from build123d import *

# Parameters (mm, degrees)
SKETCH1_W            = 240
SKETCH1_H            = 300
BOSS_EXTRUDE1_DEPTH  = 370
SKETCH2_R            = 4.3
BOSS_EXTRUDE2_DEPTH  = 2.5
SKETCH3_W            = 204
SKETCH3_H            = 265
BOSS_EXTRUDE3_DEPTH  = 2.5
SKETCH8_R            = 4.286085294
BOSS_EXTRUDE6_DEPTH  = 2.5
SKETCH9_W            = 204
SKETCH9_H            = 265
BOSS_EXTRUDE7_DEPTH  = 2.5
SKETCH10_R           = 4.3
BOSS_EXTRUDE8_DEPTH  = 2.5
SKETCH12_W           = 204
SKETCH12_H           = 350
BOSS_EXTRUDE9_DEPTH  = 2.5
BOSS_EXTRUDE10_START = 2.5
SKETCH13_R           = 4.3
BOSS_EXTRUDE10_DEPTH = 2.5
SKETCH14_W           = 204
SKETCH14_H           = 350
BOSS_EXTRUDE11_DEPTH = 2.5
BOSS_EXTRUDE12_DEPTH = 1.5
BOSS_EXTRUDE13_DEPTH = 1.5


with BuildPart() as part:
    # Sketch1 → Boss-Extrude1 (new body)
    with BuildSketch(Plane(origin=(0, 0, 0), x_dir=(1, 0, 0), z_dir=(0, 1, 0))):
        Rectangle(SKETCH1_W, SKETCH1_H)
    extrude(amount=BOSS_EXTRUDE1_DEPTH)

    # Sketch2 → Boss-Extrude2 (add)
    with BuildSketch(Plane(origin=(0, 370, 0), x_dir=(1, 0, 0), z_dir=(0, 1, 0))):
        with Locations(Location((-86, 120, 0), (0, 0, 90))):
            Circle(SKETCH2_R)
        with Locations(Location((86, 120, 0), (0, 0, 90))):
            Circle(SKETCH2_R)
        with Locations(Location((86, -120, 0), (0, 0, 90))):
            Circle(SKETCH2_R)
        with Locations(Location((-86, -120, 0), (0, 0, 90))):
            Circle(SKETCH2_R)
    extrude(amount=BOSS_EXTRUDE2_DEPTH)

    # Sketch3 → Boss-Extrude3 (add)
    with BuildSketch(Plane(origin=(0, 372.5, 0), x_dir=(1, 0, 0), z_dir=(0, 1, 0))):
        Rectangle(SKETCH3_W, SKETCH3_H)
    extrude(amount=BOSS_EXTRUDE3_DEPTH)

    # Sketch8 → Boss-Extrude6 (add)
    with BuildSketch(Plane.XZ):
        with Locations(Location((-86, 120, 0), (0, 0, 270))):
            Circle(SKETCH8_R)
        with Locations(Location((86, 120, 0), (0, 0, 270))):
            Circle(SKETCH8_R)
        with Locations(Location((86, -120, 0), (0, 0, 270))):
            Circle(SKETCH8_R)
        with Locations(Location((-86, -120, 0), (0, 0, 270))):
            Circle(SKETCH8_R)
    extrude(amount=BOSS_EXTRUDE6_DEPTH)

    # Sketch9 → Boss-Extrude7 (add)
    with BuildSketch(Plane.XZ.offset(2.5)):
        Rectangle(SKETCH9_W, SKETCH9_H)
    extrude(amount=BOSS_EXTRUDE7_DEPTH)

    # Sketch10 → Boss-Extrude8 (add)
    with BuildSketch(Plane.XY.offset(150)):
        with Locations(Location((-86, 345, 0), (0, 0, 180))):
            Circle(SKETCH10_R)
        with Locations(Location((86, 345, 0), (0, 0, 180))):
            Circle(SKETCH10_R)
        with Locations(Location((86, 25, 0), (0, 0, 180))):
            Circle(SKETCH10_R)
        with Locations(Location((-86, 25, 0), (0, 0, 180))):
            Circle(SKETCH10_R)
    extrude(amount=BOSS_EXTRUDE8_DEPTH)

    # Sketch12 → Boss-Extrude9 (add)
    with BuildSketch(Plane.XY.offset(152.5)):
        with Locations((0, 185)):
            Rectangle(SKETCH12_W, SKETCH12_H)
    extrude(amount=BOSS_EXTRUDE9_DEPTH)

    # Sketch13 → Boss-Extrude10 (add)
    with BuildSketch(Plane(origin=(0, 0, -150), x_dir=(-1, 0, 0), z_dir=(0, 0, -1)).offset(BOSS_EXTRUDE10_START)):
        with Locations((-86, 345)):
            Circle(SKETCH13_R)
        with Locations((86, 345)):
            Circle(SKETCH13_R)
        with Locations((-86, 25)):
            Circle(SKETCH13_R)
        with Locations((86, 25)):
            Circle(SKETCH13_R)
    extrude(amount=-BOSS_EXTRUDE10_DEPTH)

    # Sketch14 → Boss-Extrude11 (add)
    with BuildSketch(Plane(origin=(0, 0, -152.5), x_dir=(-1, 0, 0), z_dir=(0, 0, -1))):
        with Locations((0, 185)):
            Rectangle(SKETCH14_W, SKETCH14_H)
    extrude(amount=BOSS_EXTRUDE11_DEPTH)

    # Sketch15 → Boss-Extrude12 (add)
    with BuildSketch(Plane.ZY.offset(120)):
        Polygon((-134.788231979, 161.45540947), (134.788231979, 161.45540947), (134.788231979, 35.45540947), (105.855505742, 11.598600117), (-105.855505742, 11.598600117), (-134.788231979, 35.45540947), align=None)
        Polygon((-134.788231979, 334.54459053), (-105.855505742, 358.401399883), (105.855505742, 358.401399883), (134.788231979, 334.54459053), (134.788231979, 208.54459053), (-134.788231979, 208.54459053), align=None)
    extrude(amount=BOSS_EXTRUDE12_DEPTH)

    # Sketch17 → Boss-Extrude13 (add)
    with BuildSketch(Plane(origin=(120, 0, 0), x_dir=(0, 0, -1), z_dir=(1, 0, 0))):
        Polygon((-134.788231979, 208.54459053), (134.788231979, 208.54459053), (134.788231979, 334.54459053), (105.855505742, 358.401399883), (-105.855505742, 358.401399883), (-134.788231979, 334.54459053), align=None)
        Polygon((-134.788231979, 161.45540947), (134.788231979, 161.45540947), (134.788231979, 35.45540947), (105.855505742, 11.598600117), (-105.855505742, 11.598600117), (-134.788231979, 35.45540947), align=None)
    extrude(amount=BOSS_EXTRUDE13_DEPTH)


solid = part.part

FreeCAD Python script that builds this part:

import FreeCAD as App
import Part
import Sketcher
from FreeCAD import Vector

doc = App.newDocument("Part")
body = doc.addObject("PartDesign::Body", "Body")

# Sketch on XZ plane
sketch1 = body.newObject("Sketcher::SketchObject", "Sketch")
sketch1.AttachmentSupport = (doc.getObject("XZ_Plane"), [""])
sketch1.MapMode = "FlatFace"
sketch1.addGeometry(Part.LineSegment(Vector(-120, -150, 0), Vector(-120, 150, 0)), False)
sketch1.addGeometry(Part.LineSegment(Vector(-120, 150, 0), Vector(120, 150, 0)), False)
sketch1.addGeometry(Part.LineSegment(Vector(120, 150, 0), Vector(120, -150, 0)), False)
sketch1.addGeometry(Part.LineSegment(Vector(120, -150, 0), Vector(-120, -150, 0)), False)
sketch1.addConstraint(Sketcher.Constraint("Coincident", 0, 2, 1, 1))
sketch1.addConstraint(Sketcher.Constraint("Coincident", 1, 2, 2, 1))
sketch1.addConstraint(Sketcher.Constraint("Coincident", 2, 2, 3, 1))
sketch1.addConstraint(Sketcher.Constraint("Coincident", 3, 2, 0, 1))
sketch1.addConstraint(Sketcher.Constraint("Vertical", 0))
sketch1.addConstraint(Sketcher.Constraint("Horizontal", 1))
sketch1.addConstraint(Sketcher.Constraint("Vertical", 2))
sketch1.addConstraint(Sketcher.Constraint("Horizontal", 3))
sketch1.addConstraint(Sketcher.Constraint("Symmetric", 0, 2, 2, 2, -1, 1))
sketch1.addConstraint(Sketcher.Constraint("DistanceX", 1, 1, 1, 2, 240.0))
sketch1.addConstraint(Sketcher.Constraint("DistanceY", 0, 1, 0, 2, 300.0))
pad1 = body.newObject("PartDesign::Pad", "Pad")
pad1.Profile = sketch1
pad1.Length = 370
pad1.Reversed = True

# Sketch on XZ plane
sketch2 = body.newObject("Sketcher::SketchObject", "Sketch001")
sketch2.AttachmentSupport = (doc.getObject("XZ_Plane"), [""])
sketch2.MapMode = "FlatFace"
sketch2.AttachmentOffset = App.Placement(Vector(0, 0, -370), App.Rotation())
sketch2.addGeometry(Part.Circle(Vector(-86, -120, 0), Vector(0, 0, 1), 4.3), False)
sketch2.addGeometry(Part.Circle(Vector(86, -120, 0), Vector(0, 0, 1), 4.3), False)
sketch2.addGeometry(Part.Circle(Vector(86, 120, 0), Vector(0, 0, 1), 4.3), False)
sketch2.addGeometry(Part.Circle(Vector(-86, 120, 0), Vector(0, 0, 1), 4.3), False)
sketch2.addConstraint(Sketcher.Constraint("Equal", 0, 1))
sketch2.addConstraint(Sketcher.Constraint("Equal", 1, 2))
sketch2.addConstraint(Sketcher.Constraint("Equal", 2, 3))
sketch2.addConstraint(Sketcher.Constraint("Symmetric", 0, 3, 2, 3, -1, 1))
sketch2.addConstraint(Sketcher.Constraint("Symmetric", 1, 3, 3, 3, -1, 1))
sketch2.addConstraint(Sketcher.Constraint("Symmetric", 0, 3, 1, 3, -2))
sketch2.addConstraint(Sketcher.Constraint("Diameter", 0, 8.6))
sketch2.addConstraint(Sketcher.Constraint("DistanceX", 0, 3, -1, 1, 86.0))
sketch2.addConstraint(Sketcher.Constraint("DistanceY", 0, 3, -1, 1, 120.0))
pad2 = body.newObject("PartDesign::Pad", "Pad001")
pad2.Profile = sketch2
pad2.Length = 2.5
pad2.Reversed = True

# Sketch on XZ plane
sketch3 = body.newObject("Sketcher::SketchObject", "Sketch002")
sketch3.AttachmentSupport = (doc.getObject("XZ_Plane"), [""])
sketch3.MapMode = "FlatFace"
sketch3.AttachmentOffset = App.Placement(Vector(0, 0, -372.5), App.Rotation())
sketch3.addGeometry(Part.LineSegment(Vector(-102, -132, 0), Vector(-102, 132, 0)), False)
sketch3.addGeometry(Part.LineSegment(Vector(-102, 132, 0), Vector(102, 132, 0)), False)
sketch3.addGeometry(Part.LineSegment(Vector(102, 132, 0), Vector(102, -132, 0)), False)
sketch3.addGeometry(Part.LineSegment(Vector(102, -132, 0), Vector(-102, -132, 0)), False)
sketch3.addConstraint(Sketcher.Constraint("Coincident", 0, 2, 1, 1))
sketch3.addConstraint(Sketcher.Constraint("Coincident", 1, 2, 2, 1))
sketch3.addConstraint(Sketcher.Constraint("Coincident", 2, 2, 3, 1))
sketch3.addConstraint(Sketcher.Constraint("Coincident", 3, 2, 0, 1))
sketch3.addConstraint(Sketcher.Constraint("Vertical", 0))
sketch3.addConstraint(Sketcher.Constraint("Horizontal", 1))
sketch3.addConstraint(Sketcher.Constraint("Vertical", 2))
sketch3.addConstraint(Sketcher.Constraint("Horizontal", 3))
sketch3.addConstraint(Sketcher.Constraint("Symmetric", 0, 2, 2, 2, -1, 1))
sketch3.addConstraint(Sketcher.Constraint("DistanceX", 1, 1, 1, 2, 204.0))
sketch3.addConstraint(Sketcher.Constraint("DistanceY", 0, 1, 0, 2, 265.0))
pad3 = body.newObject("PartDesign::Pad", "Pad002")
pad3.Profile = sketch3
pad3.Length = 2.5
pad3.Reversed = True

# Sketch on XZ plane
sketch4 = body.newObject("Sketcher::SketchObject", "Sketch003")
sketch4.AttachmentSupport = (doc.getObject("XZ_Plane"), [""])
sketch4.MapMode = "FlatFace"
sketch4.addGeometry(Part.Circle(Vector(-86, 120, 0), Vector(0, 0, 1), 4.3), False)
sketch4.addGeometry(Part.Circle(Vector(86, 120, 0), Vector(0, 0, 1), 4.3), False)
sketch4.addGeometry(Part.Circle(Vector(86, -120, 0), Vector(0, 0, 1), 4.3), False)
sketch4.addGeometry(Part.Circle(Vector(-86, -120, 0), Vector(0, 0, 1), 4.3), False)
sketch4.addConstraint(Sketcher.Constraint("Equal", 0, 1))
sketch4.addConstraint(Sketcher.Constraint("Equal", 1, 2))
sketch4.addConstraint(Sketcher.Constraint("Equal", 2, 3))
sketch4.addConstraint(Sketcher.Constraint("Symmetric", 0, 3, 2, 3, -1, 1))
sketch4.addConstraint(Sketcher.Constraint("Symmetric", 1, 3, 3, 3, -1, 1))
sketch4.addConstraint(Sketcher.Constraint("Symmetric", 0, 3, 1, 3, -2))
sketch4.addConstraint(Sketcher.Constraint("DistanceX", 0, 3, -1, 1, 86.0))
sketch4.addConstraint(Sketcher.Constraint("DistanceY", -1, 1, 0, 3, 120.0))
sketch4.addConstraint(Sketcher.Constraint("Diameter", 0, 8.572171))
pad4 = body.newObject("PartDesign::Pad", "Pad003")
pad4.Profile = sketch4
pad4.Length = 2.5

# Sketch on XZ plane
sketch5 = body.newObject("Sketcher::SketchObject", "Sketch004")
sketch5.AttachmentSupport = (doc.getObject("XZ_Plane"), [""])
sketch5.MapMode = "FlatFace"
sketch5.AttachmentOffset = App.Placement(Vector(0, 0, 2.5), App.Rotation())
sketch5.addGeometry(Part.LineSegment(Vector(-102, 132, 0), Vector(-102, -132, 0)), False)
sketch5.addGeometry(Part.LineSegment(Vector(-102, -132, 0), Vector(102, -132, 0)), False)
sketch5.addGeometry(Part.LineSegment(Vector(102, -132, 0), Vector(102, 132, 0)), False)
sketch5.addGeometry(Part.LineSegment(Vector(102, 132, 0), Vector(-102, 132, 0)), False)
sketch5.addConstraint(Sketcher.Constraint("Coincident", 0, 2, 1, 1))
sketch5.addConstraint(Sketcher.Constraint("Coincident", 1, 2, 2, 1))
sketch5.addConstraint(Sketcher.Constraint("Coincident", 2, 2, 3, 1))
sketch5.addConstraint(Sketcher.Constraint("Coincident", 3, 2, 0, 1))
sketch5.addConstraint(Sketcher.Constraint("Vertical", 0))
sketch5.addConstraint(Sketcher.Constraint("Horizontal", 1))
sketch5.addConstraint(Sketcher.Constraint("Vertical", 2))
sketch5.addConstraint(Sketcher.Constraint("Horizontal", 3))
sketch5.addConstraint(Sketcher.Constraint("Symmetric", 0, 2, 2, 2, -1, 1))
sketch5.addConstraint(Sketcher.Constraint("DistanceX", 1, 1, 1, 2, 204.0))
sketch5.addConstraint(Sketcher.Constraint("DistanceY", 0, 2, 0, 1, 265.0))
pad5 = body.newObject("PartDesign::Pad", "Pad004")
pad5.Profile = sketch5
pad5.Length = 2.5

# Sketch on XY plane
sketch6 = body.newObject("Sketcher::SketchObject", "Sketch005")
sketch6.AttachmentSupport = (doc.getObject("XY_Plane"), [""])
sketch6.MapMode = "FlatFace"
sketch6.AttachmentOffset = App.Placement(Vector(0, 0, 150), App.Rotation())
sketch6.addGeometry(Part.Circle(Vector(-86, 345, 0), Vector(0, 0, 1), 4.3), False)
sketch6.addGeometry(Part.Circle(Vector(86, 345, 0), Vector(0, 0, 1), 4.3), False)
sketch6.addGeometry(Part.Circle(Vector(86, 25, 0), Vector(0, 0, 1), 4.3), False)
sketch6.addGeometry(Part.Circle(Vector(-86, 25, 0), Vector(0, 0, 1), 4.3), False)
sketch6.addConstraint(Sketcher.Constraint("Equal", 0, 1))
sketch6.addConstraint(Sketcher.Constraint("Equal", 1, 2))
sketch6.addConstraint(Sketcher.Constraint("Equal", 2, 3))
sketch6.addConstraint(Sketcher.Constraint("Symmetric", 0, 3, 1, 3, -2))
sketch6.addConstraint(Sketcher.Constraint("Symmetric", 2, 3, 3, 3, -2))
sketch6.addConstraint(Sketcher.Constraint("Vertical", 1, 3, 2, 3))
sketch6.addConstraint(Sketcher.Constraint("Diameter", 0, 8.6))
sketch6.addConstraint(Sketcher.Constraint("DistanceX", 0, 3, -1, 1, 86.0))
sketch6.addConstraint(Sketcher.Constraint("DistanceY", -1, 1, 0, 3, 345.0))
sketch6.addConstraint(Sketcher.Constraint("DistanceY", -1, 1, 2, 3, 25.0))
pad6 = body.newObject("PartDesign::Pad", "Pad005")
pad6.Profile = sketch6
pad6.Length = 2.5

# Sketch on XY plane
sketch7 = body.newObject("Sketcher::SketchObject", "Sketch006")
sketch7.AttachmentSupport = (doc.getObject("XY_Plane"), [""])
sketch7.MapMode = "FlatFace"
sketch7.AttachmentOffset = App.Placement(Vector(0, 0, 152.5), App.Rotation())
sketch7.addGeometry(Part.LineSegment(Vector(-102, 360, 0), Vector(-102, 10, 0)), False)
sketch7.addGeometry(Part.LineSegment(Vector(-102, 10, 0), Vector(102, 10, 0)), False)
sketch7.addGeometry(Part.LineSegment(Vector(102, 10, 0), Vector(102, 360, 0)), False)
sketch7.addGeometry(Part.LineSegment(Vector(102, 360, 0), Vector(-102, 360, 0)), False)
sketch7.addConstraint(Sketcher.Constraint("Coincident", 0, 2, 1, 1))
sketch7.addConstraint(Sketcher.Constraint("Coincident", 1, 2, 2, 1))
sketch7.addConstraint(Sketcher.Constraint("Coincident", 2, 2, 3, 1))
sketch7.addConstraint(Sketcher.Constraint("Coincident", 3, 2, 0, 1))
sketch7.addConstraint(Sketcher.Constraint("Vertical", 0))
sketch7.addConstraint(Sketcher.Constraint("Horizontal", 1))
sketch7.addConstraint(Sketcher.Constraint("Vertical", 2))
sketch7.addConstraint(Sketcher.Constraint("Horizontal", 3))
sketch7.addConstraint(Sketcher.Constraint("DistanceX", 1, 1, 1, 2, 204.0))
sketch7.addConstraint(Sketcher.Constraint("DistanceY", 0, 2, 0, 1, 350.0))
sketch7.addConstraint(Sketcher.Constraint("DistanceX", 0, 2, -1, 1, 102.0))
sketch7.addConstraint(Sketcher.Constraint("DistanceY", -1, 1, 0, 2, 10.0))
pad7 = body.newObject("PartDesign::Pad", "Pad006")
pad7.Profile = sketch7
pad7.Length = 2.5

# Sketch on XY plane
sketch8 = body.newObject("Sketcher::SketchObject", "Sketch007")
sketch8.AttachmentSupport = (doc.getObject("XY_Plane"), [""])
sketch8.MapMode = "FlatFace"
sketch8.AttachmentOffset = App.Placement(Vector(0, 0, -152.5), App.Rotation())
sketch8.addGeometry(Part.Circle(Vector(86, 345, 0), Vector(0, 0, 1), 4.3), False)
sketch8.addGeometry(Part.Circle(Vector(-86, 345, 0), Vector(0, 0, 1), 4.3), False)
sketch8.addGeometry(Part.Circle(Vector(86, 25, 0), Vector(0, 0, 1), 4.3), False)
sketch8.addGeometry(Part.Circle(Vector(-86, 25, 0), Vector(0, 0, 1), 4.3), False)
sketch8.addConstraint(Sketcher.Constraint("Equal", 0, 1))
sketch8.addConstraint(Sketcher.Constraint("Equal", 1, 2))
sketch8.addConstraint(Sketcher.Constraint("Equal", 2, 3))
sketch8.addConstraint(Sketcher.Constraint("Symmetric", 0, 3, 1, 3, -2))
sketch8.addConstraint(Sketcher.Constraint("Symmetric", 2, 3, 3, 3, -2))
sketch8.addConstraint(Sketcher.Constraint("Vertical", 0, 3, 2, 3))
sketch8.addConstraint(Sketcher.Constraint("Diameter", 0, 8.6))
sketch8.addConstraint(Sketcher.Constraint("DistanceX", -1, 1, 0, 3, 86.0))
sketch8.addConstraint(Sketcher.Constraint("DistanceY", -1, 1, 0, 3, 345.0))
sketch8.addConstraint(Sketcher.Constraint("DistanceY", -1, 1, 2, 3, 25.0))
pad8 = body.newObject("PartDesign::Pad", "Pad007")
pad8.Profile = sketch8
pad8.Length = 2.5

# Sketch on XY plane
sketch9 = body.newObject("Sketcher::SketchObject", "Sketch008")
sketch9.AttachmentSupport = (doc.getObject("XY_Plane"), [""])
sketch9.MapMode = "FlatFace"
sketch9.AttachmentOffset = App.Placement(Vector(0, 0, -152.5), App.Rotation())
sketch9.addGeometry(Part.LineSegment(Vector(102, 360, 0), Vector(102, 10, 0)), False)
sketch9.addGeometry(Part.LineSegment(Vector(102, 10, 0), Vector(-102, 10, 0)), False)
sketch9.addGeometry(Part.LineSegment(Vector(-102, 10, 0), Vector(-102, 360, 0)), False)
sketch9.addGeometry(Part.LineSegment(Vector(-102, 360, 0), Vector(102, 360, 0)), False)
sketch9.addConstraint(Sketcher.Constraint("Coincident", 0, 2, 1, 1))
sketch9.addConstraint(Sketcher.Constraint("Coincident", 1, 2, 2, 1))
sketch9.addConstraint(Sketcher.Constraint("Coincident", 2, 2, 3, 1))
sketch9.addConstraint(Sketcher.Constraint("Coincident", 3, 2, 0, 1))
sketch9.addConstraint(Sketcher.Constraint("Vertical", 0))
sketch9.addConstraint(Sketcher.Constraint("Horizontal", 1))
sketch9.addConstraint(Sketcher.Constraint("Vertical", 2))
sketch9.addConstraint(Sketcher.Constraint("Horizontal", 3))
sketch9.addConstraint(Sketcher.Constraint("DistanceX", 1, 2, 1, 1, 204.0))
sketch9.addConstraint(Sketcher.Constraint("DistanceY", 0, 2, 0, 1, 350.0))
sketch9.addConstraint(Sketcher.Constraint("DistanceX", -1, 1, 0, 2, 102.0))
sketch9.addConstraint(Sketcher.Constraint("DistanceY", -1, 1, 0, 2, 10.0))
pad9 = body.newObject("PartDesign::Pad", "Pad008")
pad9.Profile = sketch9
pad9.Length = 2.5
pad9.Reversed = True

# Sketch on YZ plane
sketch10 = body.newObject("Sketcher::SketchObject", "Sketch009")
sketch10.AttachmentSupport = (doc.getObject("YZ_Plane"), [""])
sketch10.MapMode = "FlatFace"
sketch10.AttachmentOffset = App.Placement(Vector(0, 0, -120), App.Rotation())
sketch10.addGeometry(Part.LineSegment(Vector(161, 135, 0), Vector(161, -135, 0)), False)
sketch10.addGeometry(Part.LineSegment(Vector(161, -135, 0), Vector(35, -135, 0)), False)
sketch10.addGeometry(Part.LineSegment(Vector(35, -135, 0), Vector(12, -106, 0)), False)
sketch10.addGeometry(Part.LineSegment(Vector(12, -106, 0), Vector(12, 106, 0)), False)
sketch10.addGeometry(Part.LineSegment(Vector(12, 106, 0), Vector(35, 135, 0)), False)
sketch10.addGeometry(Part.LineSegment(Vector(35, 135, 0), Vector(161, 135, 0)), False)
sketch10.addGeometry(Part.LineSegment(Vector(358, -106, 0), Vector(335, -135, 0)), False)
sketch10.addGeometry(Part.LineSegment(Vector(335, -135, 0), Vector(209, -135, 0)), False)
sketch10.addGeometry(Part.LineSegment(Vector(209, -135, 0), Vector(209, 135, 0)), False)
sketch10.addGeometry(Part.LineSegment(Vector(209, 135, 0), Vector(335, 135, 0)), False)
sketch10.addGeometry(Part.LineSegment(Vector(335, 135, 0), Vector(358, 106, 0)), False)
sketch10.addGeometry(Part.LineSegment(Vector(358, 106, 0), Vector(358, -106, 0)), False)
sketch10.addConstraint(Sketcher.Constraint("Coincident", 0, 2, 1, 1))
sketch10.addConstraint(Sketcher.Constraint("Coincident", 1, 2, 2, 1))
sketch10.addConstraint(Sketcher.Constraint("Coincident", 2, 2, 3, 1))
sketch10.addConstraint(Sketcher.Constraint("Coincident", 3, 2, 4, 1))
sketch10.addConstraint(Sketcher.Constraint("Coincident", 4, 2, 5, 1))
sketch10.addConstraint(Sketcher.Constraint("Coincident", 5, 2, 0, 1))
sketch10.addConstraint(Sketcher.Constraint("Coincident", 6, 2, 7, 1))
sketch10.addConstraint(Sketcher.Constraint("Coincident", 7, 2, 8, 1))
sketch10.addConstraint(Sketcher.Constraint("Coincident", 8, 2, 9, 1))
sketch10.addConstraint(Sketcher.Constraint("Coincident", 9, 2, 10, 1))
sketch10.addConstraint(Sketcher.Constraint("Coincident", 10, 2, 11, 1))
sketch10.addConstraint(Sketcher.Constraint("Coincident", 11, 2, 6, 1))
sketch10.addConstraint(Sketcher.Constraint("Vertical", 0))
sketch10.addConstraint(Sketcher.Constraint("Horizontal", 1))
sketch10.addConstraint(Sketcher.Constraint("Vertical", 3))
sketch10.addConstraint(Sketcher.Constraint("Horizontal", 5))
sketch10.addConstraint(Sketcher.Constraint("Horizontal", 7))
sketch10.addConstraint(Sketcher.Constraint("Vertical", 8))
sketch10.addConstraint(Sketcher.Constraint("Horizontal", 9))
sketch10.addConstraint(Sketcher.Constraint("Vertical", 11))
sketch10.addConstraint(Sketcher.Constraint("Symmetric", 1, 2, 4, 2, -1))
sketch10.addConstraint(Sketcher.Constraint("Symmetric", 6, 2, 9, 2, -1))
sketch10.addConstraint(Sketcher.Constraint("Parallel", 4, 6))
sketch10.addConstraint(Sketcher.Constraint("Parallel", 2, 10))
sketch10.addConstraint(Sketcher.Constraint("Horizontal", 1, 2, 6, 2))
sketch10.addConstraint(Sketcher.Constraint("Horizontal", 3, 2, 10, 2))
sketch10.addConstraint(Sketcher.Constraint("Horizontal", 2, 2, 11, 2))
sketch10.addConstraint(Sketcher.Constraint("Equal", 5, 7))
sketch10.addConstraint(Sketcher.Constraint("DistanceX", 1, 2, 1, 1, 126.0))
sketch10.addConstraint(Sketcher.Constraint("Distance", 2, 37.5))
sketch10.addConstraint(Sketcher.Constraint("DistanceY", 3, 1, 3, 2, 211.711011))
sketch10.addConstraint(Sketcher.Constraint("DistanceX", -1, 1, 2, 2, 11.5986))
sketch10.addConstraint(Sketcher.Constraint("DistanceX", -1, 1, 10, 2, 358.4014))
sketch10.addConstraint(Sketcher.Constraint("DistanceY", 0, 2, 0, 1, 269.576464))
pad10 = body.newObject("PartDesign::Pad", "Pad009")
pad10.Profile = sketch10
pad10.Length = 1.5
pad10.Reversed = True

# Sketch on YZ plane
sketch11 = body.newObject("Sketcher::SketchObject", "Sketch010")
sketch11.AttachmentSupport = (doc.getObject("YZ_Plane"), [""])
sketch11.MapMode = "FlatFace"
sketch11.AttachmentOffset = App.Placement(Vector(0, 0, 120), App.Rotation())
sketch11.addGeometry(Part.LineSegment(Vector(209, 135, 0), Vector(209, -135, 0)), False)
sketch11.addGeometry(Part.LineSegment(Vector(209, -135, 0), Vector(335, -135, 0)), False)
sketch11.addGeometry(Part.LineSegment(Vector(335, -135, 0), Vector(358, -106, 0)), False)
sketch11.addGeometry(Part.LineSegment(Vector(358, -106, 0), Vector(358, 106, 0)), False)
sketch11.addGeometry(Part.LineSegment(Vector(358, 106, 0), Vector(335, 135, 0)), False)
sketch11.addGeometry(Part.LineSegment(Vector(335, 135, 0), Vector(209, 135, 0)), False)
sketch11.addGeometry(Part.LineSegment(Vector(161, -135, 0), Vector(161, 135, 0)), False)
sketch11.addGeometry(Part.LineSegment(Vector(161, 135, 0), Vector(35, 135, 0)), False)
sketch11.addGeometry(Part.LineSegment(Vector(35, 135, 0), Vector(12, 106, 0)), False)
sketch11.addGeometry(Part.LineSegment(Vector(12, 106, 0), Vector(12, -106, 0)), False)
sketch11.addGeometry(Part.LineSegment(Vector(12, -106, 0), Vector(35, -135, 0)), False)
sketch11.addGeometry(Part.LineSegment(Vector(35, -135, 0), Vector(161, -135, 0)), False)
sketch11.addConstraint(Sketcher.Constraint("Coincident", 0, 2, 1, 1))
sketch11.addConstraint(Sketcher.Constraint("Coincident", 1, 2, 2, 1))
sketch11.addConstraint(Sketcher.Constraint("Coincident", 2, 2, 3, 1))
sketch11.addConstraint(Sketcher.Constraint("Coincident", 3, 2, 4, 1))
sketch11.addConstraint(Sketcher.Constraint("Coincident", 4, 2, 5, 1))
sketch11.addConstraint(Sketcher.Constraint("Coincident", 5, 2, 0, 1))
sketch11.addConstraint(Sketcher.Constraint("Coincident", 6, 2, 7, 1))
sketch11.addConstraint(Sketcher.Constraint("Coincident", 7, 2, 8, 1))
sketch11.addConstraint(Sketcher.Constraint("Coincident", 8, 2, 9, 1))
sketch11.addConstraint(Sketcher.Constraint("Coincident", 9, 2, 10, 1))
sketch11.addConstraint(Sketcher.Constraint("Coincident", 10, 2, 11, 1))
sketch11.addConstraint(Sketcher.Constraint("Coincident", 11, 2, 6, 1))
sketch11.addConstraint(Sketcher.Constraint("Vertical", 0))
sketch11.addConstraint(Sketcher.Constraint("Horizontal", 1))
sketch11.addConstraint(Sketcher.Constraint("Vertical", 3))
sketch11.addConstraint(Sketcher.Constraint("Horizontal", 5))
sketch11.addConstraint(Sketcher.Constraint("Vertical", 6))
sketch11.addConstraint(Sketcher.Constraint("Horizontal", 7))
sketch11.addConstraint(Sketcher.Constraint("Vertical", 9))
sketch11.addConstraint(Sketcher.Constraint("Horizontal", 11))
sketch11.addConstraint(Sketcher.Constraint("Symmetric", 1, 2, 4, 2, -1))
sketch11.addConstraint(Sketcher.Constraint("Symmetric", 7, 2, 10, 2, -1))
sketch11.addConstraint(Sketcher.Constraint("Parallel", 2, 8))
sketch11.addConstraint(Sketcher.Constraint("Parallel", 4, 10))
sketch11.addConstraint(Sketcher.Constraint("Horizontal", 5, 2, 6, 2))
sketch11.addConstraint(Sketcher.Constraint("Horizontal", 3, 2, 8, 2))
sketch11.addConstraint(Sketcher.Constraint("Horizontal", 2, 2, 9, 2))
sketch11.addConstraint(Sketcher.Constraint("Equal", 5, 7))
sketch11.addConstraint(Sketcher.Constraint("DistanceX", 1, 1, 1, 2, 126.0))
sketch11.addConstraint(Sketcher.Constraint("Distance", 2, 37.5))
sketch11.addConstraint(Sketcher.Constraint("DistanceY", 3, 1, 3, 2, 211.711011))
sketch11.addConstraint(Sketcher.Constraint("DistanceX", -1, 1, 2, 2, 358.4014))
sketch11.addConstraint(Sketcher.Constraint("DistanceX", -1, 1, 8, 2, 11.5986))
sketch11.addConstraint(Sketcher.Constraint("DistanceY", 0, 2, 0, 1, 269.576464))
pad11 = body.newObject("PartDesign::Pad", "Pad010")
pad11.Profile = sketch11
pad11.Length = 1.5

doc.recompute()
